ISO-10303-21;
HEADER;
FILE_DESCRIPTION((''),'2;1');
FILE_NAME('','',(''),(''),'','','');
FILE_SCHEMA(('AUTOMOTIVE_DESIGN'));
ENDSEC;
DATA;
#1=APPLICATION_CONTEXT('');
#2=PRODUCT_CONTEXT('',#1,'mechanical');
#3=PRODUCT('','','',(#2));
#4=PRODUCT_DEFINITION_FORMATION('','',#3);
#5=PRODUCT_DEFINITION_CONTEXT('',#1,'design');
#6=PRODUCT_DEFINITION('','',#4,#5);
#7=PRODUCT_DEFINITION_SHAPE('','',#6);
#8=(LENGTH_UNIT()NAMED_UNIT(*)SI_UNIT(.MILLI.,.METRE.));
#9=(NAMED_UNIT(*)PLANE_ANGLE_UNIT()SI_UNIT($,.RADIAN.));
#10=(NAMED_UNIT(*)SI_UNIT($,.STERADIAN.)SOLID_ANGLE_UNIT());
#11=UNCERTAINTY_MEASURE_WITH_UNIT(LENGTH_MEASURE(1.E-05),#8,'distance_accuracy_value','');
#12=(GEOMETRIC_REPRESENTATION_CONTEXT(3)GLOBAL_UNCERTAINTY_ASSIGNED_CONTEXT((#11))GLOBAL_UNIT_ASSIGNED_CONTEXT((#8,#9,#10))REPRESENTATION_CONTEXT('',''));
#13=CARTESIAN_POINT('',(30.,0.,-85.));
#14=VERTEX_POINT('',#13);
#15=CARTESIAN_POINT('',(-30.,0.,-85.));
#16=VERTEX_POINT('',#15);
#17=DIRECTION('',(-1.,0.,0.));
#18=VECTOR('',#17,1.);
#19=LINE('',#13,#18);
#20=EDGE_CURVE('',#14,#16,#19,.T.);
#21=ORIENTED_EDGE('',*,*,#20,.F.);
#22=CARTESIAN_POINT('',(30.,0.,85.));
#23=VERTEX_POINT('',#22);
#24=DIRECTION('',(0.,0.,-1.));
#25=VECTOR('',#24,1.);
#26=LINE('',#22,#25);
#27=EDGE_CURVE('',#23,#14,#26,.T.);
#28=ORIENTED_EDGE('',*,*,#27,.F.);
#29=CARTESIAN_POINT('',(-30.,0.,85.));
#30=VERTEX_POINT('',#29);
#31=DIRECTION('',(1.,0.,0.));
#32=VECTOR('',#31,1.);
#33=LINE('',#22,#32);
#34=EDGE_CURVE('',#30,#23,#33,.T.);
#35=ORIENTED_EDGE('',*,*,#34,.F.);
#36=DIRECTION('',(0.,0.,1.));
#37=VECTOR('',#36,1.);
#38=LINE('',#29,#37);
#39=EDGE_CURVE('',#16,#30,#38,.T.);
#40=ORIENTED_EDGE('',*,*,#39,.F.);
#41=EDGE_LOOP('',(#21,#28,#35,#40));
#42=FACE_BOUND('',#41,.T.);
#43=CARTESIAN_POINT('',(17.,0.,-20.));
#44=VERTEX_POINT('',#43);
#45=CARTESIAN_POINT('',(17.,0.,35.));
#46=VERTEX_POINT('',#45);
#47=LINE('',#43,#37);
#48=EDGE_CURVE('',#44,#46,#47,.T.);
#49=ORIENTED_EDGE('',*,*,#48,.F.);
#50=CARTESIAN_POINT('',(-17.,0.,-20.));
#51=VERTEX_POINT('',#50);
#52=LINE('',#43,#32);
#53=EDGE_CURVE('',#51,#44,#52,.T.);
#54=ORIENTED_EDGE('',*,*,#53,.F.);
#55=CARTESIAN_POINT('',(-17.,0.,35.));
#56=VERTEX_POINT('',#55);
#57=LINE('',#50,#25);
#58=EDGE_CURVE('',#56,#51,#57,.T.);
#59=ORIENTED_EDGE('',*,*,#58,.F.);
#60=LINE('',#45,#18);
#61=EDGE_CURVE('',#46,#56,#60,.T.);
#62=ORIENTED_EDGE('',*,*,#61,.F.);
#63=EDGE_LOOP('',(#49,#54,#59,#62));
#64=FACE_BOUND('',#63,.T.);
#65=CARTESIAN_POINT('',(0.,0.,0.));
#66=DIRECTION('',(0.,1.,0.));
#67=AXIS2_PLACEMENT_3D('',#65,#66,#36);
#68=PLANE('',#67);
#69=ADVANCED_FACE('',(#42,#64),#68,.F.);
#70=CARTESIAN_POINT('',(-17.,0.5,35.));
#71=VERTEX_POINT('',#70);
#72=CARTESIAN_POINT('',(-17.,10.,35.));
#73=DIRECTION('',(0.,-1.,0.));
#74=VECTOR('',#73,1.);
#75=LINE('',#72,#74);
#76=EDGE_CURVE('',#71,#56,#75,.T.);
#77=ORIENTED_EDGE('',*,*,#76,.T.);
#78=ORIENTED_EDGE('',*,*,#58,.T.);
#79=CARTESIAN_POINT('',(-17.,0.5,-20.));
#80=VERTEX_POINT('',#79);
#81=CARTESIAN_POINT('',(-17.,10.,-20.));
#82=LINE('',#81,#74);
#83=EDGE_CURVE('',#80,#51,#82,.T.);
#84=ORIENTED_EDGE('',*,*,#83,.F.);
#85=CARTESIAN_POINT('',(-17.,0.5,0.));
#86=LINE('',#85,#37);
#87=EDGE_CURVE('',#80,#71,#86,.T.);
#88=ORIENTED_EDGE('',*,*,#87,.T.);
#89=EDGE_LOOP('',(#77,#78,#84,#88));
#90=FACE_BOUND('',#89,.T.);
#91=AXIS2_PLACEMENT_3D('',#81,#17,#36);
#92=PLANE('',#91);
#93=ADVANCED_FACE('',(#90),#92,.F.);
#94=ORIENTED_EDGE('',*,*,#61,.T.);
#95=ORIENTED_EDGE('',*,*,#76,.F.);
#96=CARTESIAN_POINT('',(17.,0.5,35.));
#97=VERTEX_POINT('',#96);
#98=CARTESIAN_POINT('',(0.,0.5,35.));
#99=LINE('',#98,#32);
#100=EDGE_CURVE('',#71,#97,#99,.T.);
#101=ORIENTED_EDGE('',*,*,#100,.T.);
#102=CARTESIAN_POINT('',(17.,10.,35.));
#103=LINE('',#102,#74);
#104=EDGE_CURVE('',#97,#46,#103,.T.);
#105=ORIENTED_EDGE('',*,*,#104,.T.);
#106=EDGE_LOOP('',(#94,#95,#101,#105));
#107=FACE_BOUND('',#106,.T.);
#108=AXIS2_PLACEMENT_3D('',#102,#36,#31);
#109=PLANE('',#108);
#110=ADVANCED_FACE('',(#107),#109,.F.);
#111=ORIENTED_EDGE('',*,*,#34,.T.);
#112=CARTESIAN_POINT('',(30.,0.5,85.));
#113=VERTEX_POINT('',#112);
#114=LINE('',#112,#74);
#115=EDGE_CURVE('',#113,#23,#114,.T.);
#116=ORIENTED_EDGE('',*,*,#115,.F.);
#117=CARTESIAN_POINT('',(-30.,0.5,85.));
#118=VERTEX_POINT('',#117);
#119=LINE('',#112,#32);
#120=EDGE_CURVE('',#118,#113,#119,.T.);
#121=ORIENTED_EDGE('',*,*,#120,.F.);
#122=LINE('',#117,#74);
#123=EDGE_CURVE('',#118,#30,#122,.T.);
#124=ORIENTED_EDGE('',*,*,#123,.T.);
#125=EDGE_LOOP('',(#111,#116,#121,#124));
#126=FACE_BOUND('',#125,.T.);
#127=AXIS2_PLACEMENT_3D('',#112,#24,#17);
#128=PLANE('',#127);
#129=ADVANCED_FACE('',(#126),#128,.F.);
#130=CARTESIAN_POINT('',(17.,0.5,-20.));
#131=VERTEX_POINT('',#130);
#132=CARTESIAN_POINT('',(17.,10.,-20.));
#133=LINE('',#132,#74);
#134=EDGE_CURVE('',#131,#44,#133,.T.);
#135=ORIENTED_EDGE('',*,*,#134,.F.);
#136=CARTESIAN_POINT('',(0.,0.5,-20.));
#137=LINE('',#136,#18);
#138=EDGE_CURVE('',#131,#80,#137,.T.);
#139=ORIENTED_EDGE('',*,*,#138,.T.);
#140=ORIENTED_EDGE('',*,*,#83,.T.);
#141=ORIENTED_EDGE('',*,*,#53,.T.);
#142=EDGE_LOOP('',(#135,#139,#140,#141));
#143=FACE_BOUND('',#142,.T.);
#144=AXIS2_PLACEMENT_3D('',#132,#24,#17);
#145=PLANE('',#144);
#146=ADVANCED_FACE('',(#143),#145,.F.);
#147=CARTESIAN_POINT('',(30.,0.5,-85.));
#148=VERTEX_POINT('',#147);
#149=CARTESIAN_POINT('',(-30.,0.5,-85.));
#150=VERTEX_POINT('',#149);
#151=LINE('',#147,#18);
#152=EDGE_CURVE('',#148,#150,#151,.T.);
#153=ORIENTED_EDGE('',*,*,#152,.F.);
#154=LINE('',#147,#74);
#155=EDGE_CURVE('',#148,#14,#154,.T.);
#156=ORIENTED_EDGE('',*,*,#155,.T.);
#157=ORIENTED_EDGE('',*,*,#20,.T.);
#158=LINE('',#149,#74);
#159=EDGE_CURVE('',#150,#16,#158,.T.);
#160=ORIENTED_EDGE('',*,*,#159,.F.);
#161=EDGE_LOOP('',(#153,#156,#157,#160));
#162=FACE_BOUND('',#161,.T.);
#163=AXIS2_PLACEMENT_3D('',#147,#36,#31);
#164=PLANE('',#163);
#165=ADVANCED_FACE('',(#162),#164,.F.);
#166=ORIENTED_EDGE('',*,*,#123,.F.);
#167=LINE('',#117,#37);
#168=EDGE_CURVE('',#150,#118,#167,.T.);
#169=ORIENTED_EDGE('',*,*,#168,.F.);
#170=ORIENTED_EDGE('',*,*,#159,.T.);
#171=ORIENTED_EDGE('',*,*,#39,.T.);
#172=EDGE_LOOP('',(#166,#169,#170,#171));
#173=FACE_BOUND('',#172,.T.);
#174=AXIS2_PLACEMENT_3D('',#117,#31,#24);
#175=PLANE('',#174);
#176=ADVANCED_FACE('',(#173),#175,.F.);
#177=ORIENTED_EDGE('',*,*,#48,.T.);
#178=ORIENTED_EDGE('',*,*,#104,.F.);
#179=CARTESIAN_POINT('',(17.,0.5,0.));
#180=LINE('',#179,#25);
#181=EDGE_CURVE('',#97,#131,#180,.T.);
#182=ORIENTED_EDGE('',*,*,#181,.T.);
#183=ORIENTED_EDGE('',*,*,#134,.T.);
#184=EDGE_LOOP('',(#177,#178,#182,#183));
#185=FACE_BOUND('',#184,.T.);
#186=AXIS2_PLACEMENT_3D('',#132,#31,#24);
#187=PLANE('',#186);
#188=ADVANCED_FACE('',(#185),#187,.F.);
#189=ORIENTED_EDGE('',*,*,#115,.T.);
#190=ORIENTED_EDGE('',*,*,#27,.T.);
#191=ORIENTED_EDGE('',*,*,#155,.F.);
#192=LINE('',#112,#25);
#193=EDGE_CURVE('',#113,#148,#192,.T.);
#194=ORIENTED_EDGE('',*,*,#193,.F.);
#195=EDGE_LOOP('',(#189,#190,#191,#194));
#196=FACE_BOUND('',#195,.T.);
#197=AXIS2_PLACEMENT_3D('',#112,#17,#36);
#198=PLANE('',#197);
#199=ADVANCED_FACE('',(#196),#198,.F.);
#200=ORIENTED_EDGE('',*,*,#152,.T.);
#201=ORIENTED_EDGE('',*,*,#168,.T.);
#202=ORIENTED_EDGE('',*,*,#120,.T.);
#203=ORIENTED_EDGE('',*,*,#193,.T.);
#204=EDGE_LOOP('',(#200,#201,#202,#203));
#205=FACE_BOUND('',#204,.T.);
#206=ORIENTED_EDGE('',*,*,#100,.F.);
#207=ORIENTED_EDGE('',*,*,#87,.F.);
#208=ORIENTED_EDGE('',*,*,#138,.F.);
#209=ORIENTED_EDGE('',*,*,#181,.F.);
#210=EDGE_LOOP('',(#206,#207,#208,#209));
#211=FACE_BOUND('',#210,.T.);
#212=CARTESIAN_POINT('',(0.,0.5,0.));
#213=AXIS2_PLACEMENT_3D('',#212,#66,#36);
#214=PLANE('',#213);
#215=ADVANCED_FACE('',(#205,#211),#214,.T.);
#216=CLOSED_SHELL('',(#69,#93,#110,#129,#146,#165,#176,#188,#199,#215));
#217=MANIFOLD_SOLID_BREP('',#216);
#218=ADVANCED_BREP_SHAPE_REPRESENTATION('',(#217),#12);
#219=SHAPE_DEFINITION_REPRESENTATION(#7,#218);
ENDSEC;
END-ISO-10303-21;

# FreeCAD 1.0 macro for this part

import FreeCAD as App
import Part
import Sketcher

doc = App.newDocument("Part")
params = doc.addObject("Spreadsheet::Sheet", "Params")
for row, (alias, value) in enumerate([
    ("sketch1_width", "60 mm"),
    ("sketch1_height", "170 mm"),
    ("pad1_length", "0.5 mm"),
    ("sketch2_width", "34 mm"),
    ("sketch2_height", "55 mm"),
    ("pocket1_length", "10 mm"),
], start=1):
    params.set(f"A{row}", alias)
    params.set(f"B{row}", "=" + value)
    params.setAlias(f"B{row}", alias)

body = doc.addObject("PartDesign::Body", "Body")

# Sketch on XZ plane
sketch1 = doc.addObject("Sketcher::SketchObject", "Sketch")
body.addObject(sketch1)
sketch1.AttachmentSupport = (doc.XZ_Plane, [""])
sketch1.MapMode = "FlatFace"
sketch1.addGeometry([
    Part.LineSegment(App.Vector(-30, -85, 0), App.Vector(-30, 85, 0)),
    Part.LineSegment(App.Vector(-30, 85, 0), App.Vector(30, 85, 0)),
    Part.LineSegment(App.Vector(30, 85, 0), App.Vector(30, -85, 0)),
    Part.LineSegment(App.Vector(30, -85, 0), App.Vector(-30, -85, 0)),
], False)
sketch1.addConstraint([
    Sketcher.Constraint("Coincident", 0, 2, 1, 1),
    Sketcher.Constraint("Coincident", 1, 2, 2, 1),
    Sketcher.Constraint("Coincident", 2, 2, 3, 1),
    Sketcher.Constraint("Coincident", 3, 2, 0, 1),
    Sketcher.Constraint("Vertical", 0),
    Sketcher.Constraint("Horizontal", 1),
    Sketcher.Constraint("Vertical", 2),
    Sketcher.Constraint("Horizontal", 3),
    Sketcher.Constraint("Symmetric", 0, 2, 2, 2, -1, 1),
    Sketcher.Constraint("DistanceX", 1, 1, 1, 2, 60.0),
    Sketcher.Constraint("DistanceY", 0, 1, 0, 2, 170.0),
])
sketch1.setExpression("Constraints[9]", "Params.sketch1_width")
sketch1.setExpression("Constraints[10]", "Params.sketch1_height")
pad1 = doc.addObject("PartDesign::Pad", "Pad")
body.addObject(pad1)
pad1.Profile = sketch1
pad1.setExpression("Length", "Params.pad1_length")
pad1.Reversed = True

# Sketch on XZ plane
sketch2 = doc.addObject("Sketcher::SketchObject", "Sketch001")
body.addObject(sketch2)
sketch2.AttachmentSupport = (doc.XZ_Plane, [""])
sketch2.MapMode = "FlatFace"
sketch2.addGeometry([
    Part.LineSegment(App.Vector(-17, 35, 0), App.Vector(-17, -20, 0)),
    Part.LineSegment(App.Vector(-17, -20, 0), App.Vector(17, -20, 0)),
    Part.LineSegment(App.Vector(17, -20, 0), App.Vector(17, 35, 0)),
    Part.LineSegment(App.Vector(17, 35, 0), App.Vector(-17, 35, 0)),
], False)
sketch2.addConstraint([
    Sketcher.Constraint("Coincident", 0, 2, 1, 1),
    Sketcher.Constraint("Coincident", 1, 2, 2, 1),
    Sketcher.Constraint("Coincident", 2, 2, 3, 1),
    Sketcher.Constraint("Coincident", 3, 2, 0, 1),
    Sketcher.Constraint("Vertical", 0),
    Sketcher.Constraint("Horizontal", 1),
    Sketcher.Constraint("Vertical", 2),
    Sketcher.Constraint("Horizontal", 3),
    Sketcher.Constraint("DistanceX", 1, 1, 1, 2, 34.0),
    Sketcher.Constraint("DistanceY", 0, 2, 0, 1, 55.0),
    Sketcher.Constraint("DistanceX", 0, 2, -1, 1, 17.0),
    Sketcher.Constraint("DistanceY", 0, 2, -1, 1, 20.0),
])
sketch2.setExpression("Constraints[8]", "Params.sketch2_width")
sketch2.setExpression("Constraints[9]", "Params.sketch2_height")
pocket1 = doc.addObject("PartDesign::Pocket", "Pocket")
body.addObject(pocket1)
pocket1.Profile = sketch2
pocket1.setExpression("Length", "Params.pocket1_length")

doc.recompute()
